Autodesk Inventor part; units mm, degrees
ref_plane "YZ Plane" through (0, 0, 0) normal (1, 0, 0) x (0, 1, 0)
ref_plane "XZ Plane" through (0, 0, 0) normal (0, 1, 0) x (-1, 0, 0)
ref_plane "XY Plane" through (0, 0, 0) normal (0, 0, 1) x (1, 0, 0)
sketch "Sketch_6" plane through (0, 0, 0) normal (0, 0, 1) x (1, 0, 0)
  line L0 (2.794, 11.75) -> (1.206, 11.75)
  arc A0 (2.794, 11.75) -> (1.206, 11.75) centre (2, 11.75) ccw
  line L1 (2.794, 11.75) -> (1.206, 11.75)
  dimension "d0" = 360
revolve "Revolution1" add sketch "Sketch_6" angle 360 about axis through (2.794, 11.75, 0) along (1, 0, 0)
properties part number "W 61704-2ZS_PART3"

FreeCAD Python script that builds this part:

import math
import FreeCAD as App
import Part
import Sketcher
from FreeCAD import Vector
Q = App.Units.Quantity

doc = App.newDocument("Part")
body = doc.addObject("PartDesign::Body", "Body")

sketch1 = doc.addObject("Sketcher::SketchObject", "Sketch")
body.addObject(sketch1)
sketch1.AttachmentSupport = (doc.XY_Plane, [""])
sketch1.MapMode = "FlatFace"
sketch1.addGeometry(Part.LineSegment(Vector(1.2, 11.8, 0), Vector(2.8, 11.8, 0)), False)
sketch1.addGeometry(Part.ArcOfCircle(Part.Circle(Vector(2, 11.8, 0), Vector(0, 0, 1), 0.8), math.radians(0), math.radians(180)), False)
sketch1.addGeometry(Part.LineSegment(Vector(1.2, 11.8, 0), Vector(2.8, 11.8, 0)), True)
sketch1.addConstraint(Sketcher.Constraint("Coincident", 0, 1, 1, 2))
sketch1.addConstraint(Sketcher.Constraint("Coincident", 1, 1, 0, 2))
sketch1.addConstraint(Sketcher.Constraint("Horizontal", 0))
sketch1.addConstraint(Sketcher.Constraint("Horizontal", 2))
sketch1.addConstraint(Sketcher.Constraint("Coincident", 2, 1, 0, 1))
sketch1.addConstraint(Sketcher.Constraint("Horizontal", 1, 3, 0, 1))
sketch1.addConstraint(Sketcher.Constraint("Equal", 0, 2))
sketch1.addConstraint(Sketcher.Constraint("DistanceX", -1, 1, 1, 3, Q("2 mm")))
sketch1.addConstraint(Sketcher.Constraint("Radius", 1, Q("0.794 mm")))
sketch1.addConstraint(Sketcher.Constraint("DistanceY", -1, 1, 1, 3, Q("11.75 mm")))
revolution = doc.addObject("PartDesign::Revolution", "Revolution")
body.addObject(revolution)
revolution.Profile = sketch1
revolution.ReferenceAxis = (sketch1, ["Axis0"])
revolution.Angle = 360

doc.recompute()
